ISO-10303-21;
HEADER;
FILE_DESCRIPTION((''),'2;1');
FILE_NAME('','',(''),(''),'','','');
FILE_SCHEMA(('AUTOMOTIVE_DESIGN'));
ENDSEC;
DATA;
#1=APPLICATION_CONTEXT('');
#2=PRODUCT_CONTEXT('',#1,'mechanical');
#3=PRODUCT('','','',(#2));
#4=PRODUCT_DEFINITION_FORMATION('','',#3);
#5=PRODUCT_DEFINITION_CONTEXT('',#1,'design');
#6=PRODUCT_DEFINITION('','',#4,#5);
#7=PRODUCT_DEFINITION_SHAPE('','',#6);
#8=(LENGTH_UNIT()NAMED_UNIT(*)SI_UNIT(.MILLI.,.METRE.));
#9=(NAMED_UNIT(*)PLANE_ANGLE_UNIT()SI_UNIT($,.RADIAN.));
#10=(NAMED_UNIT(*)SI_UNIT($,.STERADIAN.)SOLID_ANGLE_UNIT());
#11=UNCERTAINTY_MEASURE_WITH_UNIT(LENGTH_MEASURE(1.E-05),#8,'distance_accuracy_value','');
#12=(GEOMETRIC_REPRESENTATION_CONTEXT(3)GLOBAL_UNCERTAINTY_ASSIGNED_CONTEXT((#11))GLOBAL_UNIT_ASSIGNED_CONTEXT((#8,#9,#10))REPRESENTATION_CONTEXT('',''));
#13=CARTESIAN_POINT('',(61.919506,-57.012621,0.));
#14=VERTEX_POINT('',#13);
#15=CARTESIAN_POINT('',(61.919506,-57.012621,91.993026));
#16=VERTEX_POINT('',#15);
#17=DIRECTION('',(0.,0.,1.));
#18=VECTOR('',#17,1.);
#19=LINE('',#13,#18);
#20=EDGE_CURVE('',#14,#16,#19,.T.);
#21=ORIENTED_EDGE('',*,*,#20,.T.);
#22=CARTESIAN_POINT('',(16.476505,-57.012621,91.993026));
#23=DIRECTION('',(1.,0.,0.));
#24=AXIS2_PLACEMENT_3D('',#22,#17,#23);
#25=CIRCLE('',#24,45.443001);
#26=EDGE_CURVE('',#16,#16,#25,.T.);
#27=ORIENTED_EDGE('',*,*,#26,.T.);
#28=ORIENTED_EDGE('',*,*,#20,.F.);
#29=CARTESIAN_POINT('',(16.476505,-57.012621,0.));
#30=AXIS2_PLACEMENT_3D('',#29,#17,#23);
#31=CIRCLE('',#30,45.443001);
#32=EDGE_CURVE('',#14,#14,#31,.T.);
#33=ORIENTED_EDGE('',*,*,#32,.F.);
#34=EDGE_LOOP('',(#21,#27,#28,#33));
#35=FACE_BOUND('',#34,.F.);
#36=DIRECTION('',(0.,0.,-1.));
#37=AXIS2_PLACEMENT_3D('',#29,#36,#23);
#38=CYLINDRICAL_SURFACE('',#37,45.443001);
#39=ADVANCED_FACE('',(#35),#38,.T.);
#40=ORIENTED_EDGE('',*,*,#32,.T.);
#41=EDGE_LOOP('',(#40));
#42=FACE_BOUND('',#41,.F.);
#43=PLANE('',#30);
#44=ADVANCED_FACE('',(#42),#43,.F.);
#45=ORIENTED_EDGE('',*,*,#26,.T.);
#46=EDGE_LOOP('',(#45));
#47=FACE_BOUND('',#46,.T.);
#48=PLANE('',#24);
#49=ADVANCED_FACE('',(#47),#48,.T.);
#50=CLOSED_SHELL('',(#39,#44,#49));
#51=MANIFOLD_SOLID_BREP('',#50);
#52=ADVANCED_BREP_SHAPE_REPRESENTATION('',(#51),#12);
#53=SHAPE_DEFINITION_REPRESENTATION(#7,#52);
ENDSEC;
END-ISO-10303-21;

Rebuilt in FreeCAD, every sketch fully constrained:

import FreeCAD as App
import Part
import Sketcher
Q = App.Units.Quantity

doc = App.newDocument("Part")
body = doc.addObject("PartDesign::Body", "Body")

sketch1 = body.newObject("Sketcher::SketchObject", "Sketch")
sketch1.AttachmentSupport = (doc.getObject("XY_Plane"), [""])
sketch1.MapMode = "FlatFace"
sketch1.addGeometry(Part.Circle(App.Vector(16.476505, -57.012621, 0), App.Vector(0, 0, 1), 45.443001), False)
sketch1.addConstraint(Sketcher.Constraint("Diameter", 0, Q("90.886002 mm")))
sketch1.addConstraint(Sketcher.Constraint("DistanceY", 0, 3, -1, 1, Q("57.012621 mm")))
sketch1.addConstraint(Sketcher.Constraint("DistanceX", -1, 1, 0, 3, Q("16.476505 mm")))
pad1 = body.newObject("PartDesign::Pad", "Pad")
pad1.Profile = sketch1
pad1.Length = 91.993026

doc.recompute()
